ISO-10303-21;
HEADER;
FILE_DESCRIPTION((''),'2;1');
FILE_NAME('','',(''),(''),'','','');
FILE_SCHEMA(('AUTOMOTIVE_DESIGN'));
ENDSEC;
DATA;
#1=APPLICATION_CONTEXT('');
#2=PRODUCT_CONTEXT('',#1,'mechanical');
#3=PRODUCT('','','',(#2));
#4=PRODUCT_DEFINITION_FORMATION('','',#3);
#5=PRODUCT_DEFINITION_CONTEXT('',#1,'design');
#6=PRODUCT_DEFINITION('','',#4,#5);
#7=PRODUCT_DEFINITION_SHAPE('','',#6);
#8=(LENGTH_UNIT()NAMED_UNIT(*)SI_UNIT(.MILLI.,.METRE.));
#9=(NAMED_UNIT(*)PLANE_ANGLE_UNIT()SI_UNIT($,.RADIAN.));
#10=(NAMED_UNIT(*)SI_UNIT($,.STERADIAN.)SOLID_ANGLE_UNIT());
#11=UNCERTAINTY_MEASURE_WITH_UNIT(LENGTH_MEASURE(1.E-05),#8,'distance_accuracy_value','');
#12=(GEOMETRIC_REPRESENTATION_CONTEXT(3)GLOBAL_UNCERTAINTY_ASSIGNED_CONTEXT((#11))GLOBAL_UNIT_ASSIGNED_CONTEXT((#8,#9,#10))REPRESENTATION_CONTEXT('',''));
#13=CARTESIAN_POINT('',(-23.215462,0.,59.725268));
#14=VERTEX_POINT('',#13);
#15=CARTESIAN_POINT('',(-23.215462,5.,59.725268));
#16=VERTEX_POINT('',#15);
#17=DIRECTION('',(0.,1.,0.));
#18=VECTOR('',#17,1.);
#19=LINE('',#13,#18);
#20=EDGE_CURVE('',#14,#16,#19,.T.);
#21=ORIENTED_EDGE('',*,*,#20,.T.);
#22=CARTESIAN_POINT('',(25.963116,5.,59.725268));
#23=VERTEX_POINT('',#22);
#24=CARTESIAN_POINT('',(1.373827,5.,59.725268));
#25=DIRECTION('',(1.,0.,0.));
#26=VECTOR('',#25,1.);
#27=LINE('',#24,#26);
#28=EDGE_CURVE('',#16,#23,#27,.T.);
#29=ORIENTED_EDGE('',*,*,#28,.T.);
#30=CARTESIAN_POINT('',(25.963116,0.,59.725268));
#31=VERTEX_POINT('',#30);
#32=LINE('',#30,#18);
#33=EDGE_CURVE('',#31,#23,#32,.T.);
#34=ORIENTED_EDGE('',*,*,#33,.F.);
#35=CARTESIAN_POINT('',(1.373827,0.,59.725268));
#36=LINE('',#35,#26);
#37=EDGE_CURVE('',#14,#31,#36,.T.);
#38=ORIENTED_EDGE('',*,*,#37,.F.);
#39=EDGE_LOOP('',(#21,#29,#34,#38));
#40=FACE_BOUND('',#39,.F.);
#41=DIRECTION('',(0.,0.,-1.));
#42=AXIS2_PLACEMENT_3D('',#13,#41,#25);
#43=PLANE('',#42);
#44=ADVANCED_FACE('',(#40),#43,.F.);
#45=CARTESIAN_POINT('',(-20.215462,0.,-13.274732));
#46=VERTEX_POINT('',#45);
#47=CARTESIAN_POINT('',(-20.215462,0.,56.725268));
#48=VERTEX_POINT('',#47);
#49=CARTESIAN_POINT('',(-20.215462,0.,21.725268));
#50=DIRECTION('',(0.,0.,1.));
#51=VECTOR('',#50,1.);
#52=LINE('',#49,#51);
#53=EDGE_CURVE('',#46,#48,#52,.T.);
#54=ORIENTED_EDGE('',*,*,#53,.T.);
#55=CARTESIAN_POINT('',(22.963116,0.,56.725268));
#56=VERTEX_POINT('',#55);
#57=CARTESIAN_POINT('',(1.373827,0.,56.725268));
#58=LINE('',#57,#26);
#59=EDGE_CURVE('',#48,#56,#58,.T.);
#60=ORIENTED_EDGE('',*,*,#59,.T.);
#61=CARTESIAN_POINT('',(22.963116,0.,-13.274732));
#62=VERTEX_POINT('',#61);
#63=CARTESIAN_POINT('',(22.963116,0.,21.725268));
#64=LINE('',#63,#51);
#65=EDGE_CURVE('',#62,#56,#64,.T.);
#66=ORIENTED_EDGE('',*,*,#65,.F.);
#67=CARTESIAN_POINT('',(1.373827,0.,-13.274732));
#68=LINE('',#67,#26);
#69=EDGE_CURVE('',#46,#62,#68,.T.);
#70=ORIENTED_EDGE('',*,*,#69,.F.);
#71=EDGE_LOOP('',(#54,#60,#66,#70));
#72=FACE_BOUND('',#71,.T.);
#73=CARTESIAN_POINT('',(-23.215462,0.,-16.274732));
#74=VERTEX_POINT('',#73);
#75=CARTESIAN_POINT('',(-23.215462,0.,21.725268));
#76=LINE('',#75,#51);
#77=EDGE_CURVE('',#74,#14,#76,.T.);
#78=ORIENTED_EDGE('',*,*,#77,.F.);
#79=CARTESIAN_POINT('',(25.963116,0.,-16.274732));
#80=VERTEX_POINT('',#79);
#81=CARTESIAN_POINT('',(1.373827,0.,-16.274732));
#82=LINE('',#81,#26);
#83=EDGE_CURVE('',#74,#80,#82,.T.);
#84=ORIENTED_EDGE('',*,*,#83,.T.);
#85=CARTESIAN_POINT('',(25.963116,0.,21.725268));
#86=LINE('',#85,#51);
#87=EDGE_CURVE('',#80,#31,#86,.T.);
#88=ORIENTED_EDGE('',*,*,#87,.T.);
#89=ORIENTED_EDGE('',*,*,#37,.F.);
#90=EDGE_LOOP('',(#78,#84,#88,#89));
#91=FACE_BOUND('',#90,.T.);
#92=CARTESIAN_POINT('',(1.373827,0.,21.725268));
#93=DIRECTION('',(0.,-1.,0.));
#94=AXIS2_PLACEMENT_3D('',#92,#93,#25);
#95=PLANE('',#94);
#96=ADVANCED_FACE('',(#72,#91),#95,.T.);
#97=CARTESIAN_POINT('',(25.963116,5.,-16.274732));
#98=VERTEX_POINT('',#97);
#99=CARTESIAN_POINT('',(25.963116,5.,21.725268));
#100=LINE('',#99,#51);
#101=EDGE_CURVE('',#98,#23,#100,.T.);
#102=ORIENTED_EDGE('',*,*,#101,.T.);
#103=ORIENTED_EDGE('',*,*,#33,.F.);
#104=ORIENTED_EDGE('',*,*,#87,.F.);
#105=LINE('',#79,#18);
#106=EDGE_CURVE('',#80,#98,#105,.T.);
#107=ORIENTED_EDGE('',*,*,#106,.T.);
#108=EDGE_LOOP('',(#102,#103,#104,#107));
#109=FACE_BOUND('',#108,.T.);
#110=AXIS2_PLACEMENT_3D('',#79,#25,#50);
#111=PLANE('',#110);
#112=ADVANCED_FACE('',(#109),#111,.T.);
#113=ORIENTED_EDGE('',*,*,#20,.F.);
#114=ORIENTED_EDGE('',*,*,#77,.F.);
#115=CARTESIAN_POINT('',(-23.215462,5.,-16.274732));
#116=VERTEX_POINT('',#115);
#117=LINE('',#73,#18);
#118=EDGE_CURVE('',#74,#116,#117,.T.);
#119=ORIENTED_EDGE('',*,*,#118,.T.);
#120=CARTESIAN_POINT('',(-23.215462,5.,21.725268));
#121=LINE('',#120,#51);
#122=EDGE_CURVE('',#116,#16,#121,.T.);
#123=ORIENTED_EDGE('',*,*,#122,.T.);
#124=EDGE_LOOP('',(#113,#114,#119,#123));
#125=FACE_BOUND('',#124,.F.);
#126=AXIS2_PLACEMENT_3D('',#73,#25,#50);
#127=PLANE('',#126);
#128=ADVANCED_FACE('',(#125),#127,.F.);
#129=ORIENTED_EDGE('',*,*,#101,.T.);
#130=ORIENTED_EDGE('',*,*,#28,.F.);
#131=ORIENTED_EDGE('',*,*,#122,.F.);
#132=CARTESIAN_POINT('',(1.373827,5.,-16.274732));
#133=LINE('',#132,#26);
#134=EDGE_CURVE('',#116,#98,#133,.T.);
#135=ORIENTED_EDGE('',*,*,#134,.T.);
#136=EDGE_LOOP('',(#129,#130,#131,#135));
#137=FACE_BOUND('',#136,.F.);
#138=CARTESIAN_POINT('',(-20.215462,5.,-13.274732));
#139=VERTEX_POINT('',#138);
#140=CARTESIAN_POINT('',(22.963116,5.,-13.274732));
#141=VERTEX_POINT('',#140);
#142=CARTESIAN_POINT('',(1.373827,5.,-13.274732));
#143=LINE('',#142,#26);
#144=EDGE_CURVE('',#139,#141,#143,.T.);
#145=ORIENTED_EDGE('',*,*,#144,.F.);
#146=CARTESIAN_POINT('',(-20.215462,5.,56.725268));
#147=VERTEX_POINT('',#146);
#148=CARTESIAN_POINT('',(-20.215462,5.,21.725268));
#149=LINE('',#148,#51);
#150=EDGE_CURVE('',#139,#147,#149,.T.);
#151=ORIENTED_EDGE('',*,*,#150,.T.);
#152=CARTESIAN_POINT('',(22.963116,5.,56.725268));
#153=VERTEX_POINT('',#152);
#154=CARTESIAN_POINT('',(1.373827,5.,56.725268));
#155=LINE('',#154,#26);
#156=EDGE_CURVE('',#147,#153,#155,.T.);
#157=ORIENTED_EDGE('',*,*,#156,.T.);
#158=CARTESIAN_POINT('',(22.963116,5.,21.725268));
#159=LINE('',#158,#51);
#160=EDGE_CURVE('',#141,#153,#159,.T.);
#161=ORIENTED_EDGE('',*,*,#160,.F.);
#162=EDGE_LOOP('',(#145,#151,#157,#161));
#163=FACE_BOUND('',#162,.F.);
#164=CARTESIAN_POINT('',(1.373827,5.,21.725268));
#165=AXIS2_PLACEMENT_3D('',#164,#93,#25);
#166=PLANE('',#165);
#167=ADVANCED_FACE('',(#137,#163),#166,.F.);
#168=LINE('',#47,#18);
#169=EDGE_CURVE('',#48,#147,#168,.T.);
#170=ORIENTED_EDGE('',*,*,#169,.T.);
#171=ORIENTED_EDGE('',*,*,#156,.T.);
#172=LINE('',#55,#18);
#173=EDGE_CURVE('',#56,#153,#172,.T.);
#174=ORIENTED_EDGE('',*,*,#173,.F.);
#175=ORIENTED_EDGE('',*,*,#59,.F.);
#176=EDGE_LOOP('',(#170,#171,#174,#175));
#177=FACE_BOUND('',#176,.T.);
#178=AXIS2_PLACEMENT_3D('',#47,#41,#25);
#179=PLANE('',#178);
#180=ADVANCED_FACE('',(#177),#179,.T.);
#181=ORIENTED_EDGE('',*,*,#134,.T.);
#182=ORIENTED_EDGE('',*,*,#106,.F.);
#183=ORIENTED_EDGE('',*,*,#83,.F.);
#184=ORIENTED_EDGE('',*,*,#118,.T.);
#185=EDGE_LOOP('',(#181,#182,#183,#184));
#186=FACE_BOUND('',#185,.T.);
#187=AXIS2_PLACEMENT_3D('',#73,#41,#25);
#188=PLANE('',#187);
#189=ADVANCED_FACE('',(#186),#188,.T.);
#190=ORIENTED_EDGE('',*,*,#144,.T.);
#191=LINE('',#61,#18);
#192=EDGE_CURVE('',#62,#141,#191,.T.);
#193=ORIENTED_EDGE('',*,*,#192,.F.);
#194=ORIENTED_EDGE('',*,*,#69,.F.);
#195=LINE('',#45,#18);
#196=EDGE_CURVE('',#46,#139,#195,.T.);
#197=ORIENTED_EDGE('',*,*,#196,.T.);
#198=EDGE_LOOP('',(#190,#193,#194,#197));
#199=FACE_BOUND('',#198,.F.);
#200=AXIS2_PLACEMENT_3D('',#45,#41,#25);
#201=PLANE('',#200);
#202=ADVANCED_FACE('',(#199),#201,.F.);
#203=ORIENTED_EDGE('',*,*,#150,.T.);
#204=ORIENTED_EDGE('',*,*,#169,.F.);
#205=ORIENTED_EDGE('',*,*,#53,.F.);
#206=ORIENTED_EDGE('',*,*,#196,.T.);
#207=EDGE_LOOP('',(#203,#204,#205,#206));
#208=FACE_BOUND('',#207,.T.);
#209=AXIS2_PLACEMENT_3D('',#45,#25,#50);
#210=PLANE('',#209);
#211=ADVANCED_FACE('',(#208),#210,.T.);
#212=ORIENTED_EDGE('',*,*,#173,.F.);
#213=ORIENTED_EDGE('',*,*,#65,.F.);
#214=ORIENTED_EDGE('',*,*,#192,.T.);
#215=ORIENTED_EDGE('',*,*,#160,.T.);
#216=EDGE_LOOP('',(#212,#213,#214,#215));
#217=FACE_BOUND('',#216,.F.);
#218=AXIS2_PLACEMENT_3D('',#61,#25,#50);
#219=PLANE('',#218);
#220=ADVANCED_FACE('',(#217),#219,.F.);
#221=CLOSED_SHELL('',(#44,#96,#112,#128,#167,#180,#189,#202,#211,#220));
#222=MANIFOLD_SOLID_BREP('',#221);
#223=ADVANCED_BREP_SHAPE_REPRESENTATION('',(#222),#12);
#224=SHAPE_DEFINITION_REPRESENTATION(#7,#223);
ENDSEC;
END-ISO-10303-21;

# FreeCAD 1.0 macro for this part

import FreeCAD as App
import Part
import Sketcher
from FreeCAD import Vector


def add_polygon(sketch, points):
    """Adds a closed chain of lines whose ends are joined by coincident constraints."""
    first, n = sketch.GeometryCount, len(points)
    for a, b in zip(points, points[1:] + points[:1]):
        sketch.addGeometry(Part.LineSegment(App.Vector(*a, 0), App.Vector(*b, 0)), False)
    for i in range(n):
        sketch.addConstraint(Sketcher.Constraint("Coincident", first + i, 2, first + (i + 1) % n, 1))

doc = App.newDocument("Part")
body = doc.addObject("PartDesign::Body", "Body")

# Sketch on XZ plane
sketch1 = body.newObject("Sketcher::SketchObject", "Sketch")
sketch1.AttachmentSupport = (doc.getObject("XZ_Plane"), [""])
sketch1.MapMode = "FlatFace"
add_polygon(sketch1, [(-23, 60), (-23, -16), (26, -16), (26, 60)])  # lines 0-3
add_polygon(sketch1, [(23, -13), (-20, -13), (-20, 57), (23, 57)])  # lines 4-7
sketch1.addConstraint([
    Sketcher.Constraint("Vertical", 0),
    Sketcher.Constraint("Horizontal", 1),
    Sketcher.Constraint("Vertical", 2),
    Sketcher.Constraint("Horizontal", 3),
    Sketcher.Constraint("Horizontal", 4),
    Sketcher.Constraint("Vertical", 5),
    Sketcher.Constraint("Horizontal", 6),
    Sketcher.Constraint("Vertical", 7),
    Sketcher.Constraint("DistanceY", 0, 2, 0, 1, 76.0),
    Sketcher.Constraint("DistanceY", 5, 1, 5, 2, 70.0),
    Sketcher.Constraint("DistanceX", 0, 2, 4, 2, 3.0),
    Sketcher.Constraint("DistanceY", 0, 2, 4, 2, 3.0),
    Sketcher.Constraint("DistanceX", 6, 2, 2, 2, 3.0),
    Sketcher.Constraint("DistanceX", 1, 1, 1, 2, 49.178578),
    Sketcher.Constraint("DistanceX", 0, 2, -1, 1, 23.215462),
    Sketcher.Constraint("DistanceY", 0, 2, -1, 1, 16.274732),
])
pad1 = body.newObject("PartDesign::Pad", "Pad")
pad1.Profile = sketch1
pad1.Length = 5
pad1.Reversed = True

doc.recompute()
